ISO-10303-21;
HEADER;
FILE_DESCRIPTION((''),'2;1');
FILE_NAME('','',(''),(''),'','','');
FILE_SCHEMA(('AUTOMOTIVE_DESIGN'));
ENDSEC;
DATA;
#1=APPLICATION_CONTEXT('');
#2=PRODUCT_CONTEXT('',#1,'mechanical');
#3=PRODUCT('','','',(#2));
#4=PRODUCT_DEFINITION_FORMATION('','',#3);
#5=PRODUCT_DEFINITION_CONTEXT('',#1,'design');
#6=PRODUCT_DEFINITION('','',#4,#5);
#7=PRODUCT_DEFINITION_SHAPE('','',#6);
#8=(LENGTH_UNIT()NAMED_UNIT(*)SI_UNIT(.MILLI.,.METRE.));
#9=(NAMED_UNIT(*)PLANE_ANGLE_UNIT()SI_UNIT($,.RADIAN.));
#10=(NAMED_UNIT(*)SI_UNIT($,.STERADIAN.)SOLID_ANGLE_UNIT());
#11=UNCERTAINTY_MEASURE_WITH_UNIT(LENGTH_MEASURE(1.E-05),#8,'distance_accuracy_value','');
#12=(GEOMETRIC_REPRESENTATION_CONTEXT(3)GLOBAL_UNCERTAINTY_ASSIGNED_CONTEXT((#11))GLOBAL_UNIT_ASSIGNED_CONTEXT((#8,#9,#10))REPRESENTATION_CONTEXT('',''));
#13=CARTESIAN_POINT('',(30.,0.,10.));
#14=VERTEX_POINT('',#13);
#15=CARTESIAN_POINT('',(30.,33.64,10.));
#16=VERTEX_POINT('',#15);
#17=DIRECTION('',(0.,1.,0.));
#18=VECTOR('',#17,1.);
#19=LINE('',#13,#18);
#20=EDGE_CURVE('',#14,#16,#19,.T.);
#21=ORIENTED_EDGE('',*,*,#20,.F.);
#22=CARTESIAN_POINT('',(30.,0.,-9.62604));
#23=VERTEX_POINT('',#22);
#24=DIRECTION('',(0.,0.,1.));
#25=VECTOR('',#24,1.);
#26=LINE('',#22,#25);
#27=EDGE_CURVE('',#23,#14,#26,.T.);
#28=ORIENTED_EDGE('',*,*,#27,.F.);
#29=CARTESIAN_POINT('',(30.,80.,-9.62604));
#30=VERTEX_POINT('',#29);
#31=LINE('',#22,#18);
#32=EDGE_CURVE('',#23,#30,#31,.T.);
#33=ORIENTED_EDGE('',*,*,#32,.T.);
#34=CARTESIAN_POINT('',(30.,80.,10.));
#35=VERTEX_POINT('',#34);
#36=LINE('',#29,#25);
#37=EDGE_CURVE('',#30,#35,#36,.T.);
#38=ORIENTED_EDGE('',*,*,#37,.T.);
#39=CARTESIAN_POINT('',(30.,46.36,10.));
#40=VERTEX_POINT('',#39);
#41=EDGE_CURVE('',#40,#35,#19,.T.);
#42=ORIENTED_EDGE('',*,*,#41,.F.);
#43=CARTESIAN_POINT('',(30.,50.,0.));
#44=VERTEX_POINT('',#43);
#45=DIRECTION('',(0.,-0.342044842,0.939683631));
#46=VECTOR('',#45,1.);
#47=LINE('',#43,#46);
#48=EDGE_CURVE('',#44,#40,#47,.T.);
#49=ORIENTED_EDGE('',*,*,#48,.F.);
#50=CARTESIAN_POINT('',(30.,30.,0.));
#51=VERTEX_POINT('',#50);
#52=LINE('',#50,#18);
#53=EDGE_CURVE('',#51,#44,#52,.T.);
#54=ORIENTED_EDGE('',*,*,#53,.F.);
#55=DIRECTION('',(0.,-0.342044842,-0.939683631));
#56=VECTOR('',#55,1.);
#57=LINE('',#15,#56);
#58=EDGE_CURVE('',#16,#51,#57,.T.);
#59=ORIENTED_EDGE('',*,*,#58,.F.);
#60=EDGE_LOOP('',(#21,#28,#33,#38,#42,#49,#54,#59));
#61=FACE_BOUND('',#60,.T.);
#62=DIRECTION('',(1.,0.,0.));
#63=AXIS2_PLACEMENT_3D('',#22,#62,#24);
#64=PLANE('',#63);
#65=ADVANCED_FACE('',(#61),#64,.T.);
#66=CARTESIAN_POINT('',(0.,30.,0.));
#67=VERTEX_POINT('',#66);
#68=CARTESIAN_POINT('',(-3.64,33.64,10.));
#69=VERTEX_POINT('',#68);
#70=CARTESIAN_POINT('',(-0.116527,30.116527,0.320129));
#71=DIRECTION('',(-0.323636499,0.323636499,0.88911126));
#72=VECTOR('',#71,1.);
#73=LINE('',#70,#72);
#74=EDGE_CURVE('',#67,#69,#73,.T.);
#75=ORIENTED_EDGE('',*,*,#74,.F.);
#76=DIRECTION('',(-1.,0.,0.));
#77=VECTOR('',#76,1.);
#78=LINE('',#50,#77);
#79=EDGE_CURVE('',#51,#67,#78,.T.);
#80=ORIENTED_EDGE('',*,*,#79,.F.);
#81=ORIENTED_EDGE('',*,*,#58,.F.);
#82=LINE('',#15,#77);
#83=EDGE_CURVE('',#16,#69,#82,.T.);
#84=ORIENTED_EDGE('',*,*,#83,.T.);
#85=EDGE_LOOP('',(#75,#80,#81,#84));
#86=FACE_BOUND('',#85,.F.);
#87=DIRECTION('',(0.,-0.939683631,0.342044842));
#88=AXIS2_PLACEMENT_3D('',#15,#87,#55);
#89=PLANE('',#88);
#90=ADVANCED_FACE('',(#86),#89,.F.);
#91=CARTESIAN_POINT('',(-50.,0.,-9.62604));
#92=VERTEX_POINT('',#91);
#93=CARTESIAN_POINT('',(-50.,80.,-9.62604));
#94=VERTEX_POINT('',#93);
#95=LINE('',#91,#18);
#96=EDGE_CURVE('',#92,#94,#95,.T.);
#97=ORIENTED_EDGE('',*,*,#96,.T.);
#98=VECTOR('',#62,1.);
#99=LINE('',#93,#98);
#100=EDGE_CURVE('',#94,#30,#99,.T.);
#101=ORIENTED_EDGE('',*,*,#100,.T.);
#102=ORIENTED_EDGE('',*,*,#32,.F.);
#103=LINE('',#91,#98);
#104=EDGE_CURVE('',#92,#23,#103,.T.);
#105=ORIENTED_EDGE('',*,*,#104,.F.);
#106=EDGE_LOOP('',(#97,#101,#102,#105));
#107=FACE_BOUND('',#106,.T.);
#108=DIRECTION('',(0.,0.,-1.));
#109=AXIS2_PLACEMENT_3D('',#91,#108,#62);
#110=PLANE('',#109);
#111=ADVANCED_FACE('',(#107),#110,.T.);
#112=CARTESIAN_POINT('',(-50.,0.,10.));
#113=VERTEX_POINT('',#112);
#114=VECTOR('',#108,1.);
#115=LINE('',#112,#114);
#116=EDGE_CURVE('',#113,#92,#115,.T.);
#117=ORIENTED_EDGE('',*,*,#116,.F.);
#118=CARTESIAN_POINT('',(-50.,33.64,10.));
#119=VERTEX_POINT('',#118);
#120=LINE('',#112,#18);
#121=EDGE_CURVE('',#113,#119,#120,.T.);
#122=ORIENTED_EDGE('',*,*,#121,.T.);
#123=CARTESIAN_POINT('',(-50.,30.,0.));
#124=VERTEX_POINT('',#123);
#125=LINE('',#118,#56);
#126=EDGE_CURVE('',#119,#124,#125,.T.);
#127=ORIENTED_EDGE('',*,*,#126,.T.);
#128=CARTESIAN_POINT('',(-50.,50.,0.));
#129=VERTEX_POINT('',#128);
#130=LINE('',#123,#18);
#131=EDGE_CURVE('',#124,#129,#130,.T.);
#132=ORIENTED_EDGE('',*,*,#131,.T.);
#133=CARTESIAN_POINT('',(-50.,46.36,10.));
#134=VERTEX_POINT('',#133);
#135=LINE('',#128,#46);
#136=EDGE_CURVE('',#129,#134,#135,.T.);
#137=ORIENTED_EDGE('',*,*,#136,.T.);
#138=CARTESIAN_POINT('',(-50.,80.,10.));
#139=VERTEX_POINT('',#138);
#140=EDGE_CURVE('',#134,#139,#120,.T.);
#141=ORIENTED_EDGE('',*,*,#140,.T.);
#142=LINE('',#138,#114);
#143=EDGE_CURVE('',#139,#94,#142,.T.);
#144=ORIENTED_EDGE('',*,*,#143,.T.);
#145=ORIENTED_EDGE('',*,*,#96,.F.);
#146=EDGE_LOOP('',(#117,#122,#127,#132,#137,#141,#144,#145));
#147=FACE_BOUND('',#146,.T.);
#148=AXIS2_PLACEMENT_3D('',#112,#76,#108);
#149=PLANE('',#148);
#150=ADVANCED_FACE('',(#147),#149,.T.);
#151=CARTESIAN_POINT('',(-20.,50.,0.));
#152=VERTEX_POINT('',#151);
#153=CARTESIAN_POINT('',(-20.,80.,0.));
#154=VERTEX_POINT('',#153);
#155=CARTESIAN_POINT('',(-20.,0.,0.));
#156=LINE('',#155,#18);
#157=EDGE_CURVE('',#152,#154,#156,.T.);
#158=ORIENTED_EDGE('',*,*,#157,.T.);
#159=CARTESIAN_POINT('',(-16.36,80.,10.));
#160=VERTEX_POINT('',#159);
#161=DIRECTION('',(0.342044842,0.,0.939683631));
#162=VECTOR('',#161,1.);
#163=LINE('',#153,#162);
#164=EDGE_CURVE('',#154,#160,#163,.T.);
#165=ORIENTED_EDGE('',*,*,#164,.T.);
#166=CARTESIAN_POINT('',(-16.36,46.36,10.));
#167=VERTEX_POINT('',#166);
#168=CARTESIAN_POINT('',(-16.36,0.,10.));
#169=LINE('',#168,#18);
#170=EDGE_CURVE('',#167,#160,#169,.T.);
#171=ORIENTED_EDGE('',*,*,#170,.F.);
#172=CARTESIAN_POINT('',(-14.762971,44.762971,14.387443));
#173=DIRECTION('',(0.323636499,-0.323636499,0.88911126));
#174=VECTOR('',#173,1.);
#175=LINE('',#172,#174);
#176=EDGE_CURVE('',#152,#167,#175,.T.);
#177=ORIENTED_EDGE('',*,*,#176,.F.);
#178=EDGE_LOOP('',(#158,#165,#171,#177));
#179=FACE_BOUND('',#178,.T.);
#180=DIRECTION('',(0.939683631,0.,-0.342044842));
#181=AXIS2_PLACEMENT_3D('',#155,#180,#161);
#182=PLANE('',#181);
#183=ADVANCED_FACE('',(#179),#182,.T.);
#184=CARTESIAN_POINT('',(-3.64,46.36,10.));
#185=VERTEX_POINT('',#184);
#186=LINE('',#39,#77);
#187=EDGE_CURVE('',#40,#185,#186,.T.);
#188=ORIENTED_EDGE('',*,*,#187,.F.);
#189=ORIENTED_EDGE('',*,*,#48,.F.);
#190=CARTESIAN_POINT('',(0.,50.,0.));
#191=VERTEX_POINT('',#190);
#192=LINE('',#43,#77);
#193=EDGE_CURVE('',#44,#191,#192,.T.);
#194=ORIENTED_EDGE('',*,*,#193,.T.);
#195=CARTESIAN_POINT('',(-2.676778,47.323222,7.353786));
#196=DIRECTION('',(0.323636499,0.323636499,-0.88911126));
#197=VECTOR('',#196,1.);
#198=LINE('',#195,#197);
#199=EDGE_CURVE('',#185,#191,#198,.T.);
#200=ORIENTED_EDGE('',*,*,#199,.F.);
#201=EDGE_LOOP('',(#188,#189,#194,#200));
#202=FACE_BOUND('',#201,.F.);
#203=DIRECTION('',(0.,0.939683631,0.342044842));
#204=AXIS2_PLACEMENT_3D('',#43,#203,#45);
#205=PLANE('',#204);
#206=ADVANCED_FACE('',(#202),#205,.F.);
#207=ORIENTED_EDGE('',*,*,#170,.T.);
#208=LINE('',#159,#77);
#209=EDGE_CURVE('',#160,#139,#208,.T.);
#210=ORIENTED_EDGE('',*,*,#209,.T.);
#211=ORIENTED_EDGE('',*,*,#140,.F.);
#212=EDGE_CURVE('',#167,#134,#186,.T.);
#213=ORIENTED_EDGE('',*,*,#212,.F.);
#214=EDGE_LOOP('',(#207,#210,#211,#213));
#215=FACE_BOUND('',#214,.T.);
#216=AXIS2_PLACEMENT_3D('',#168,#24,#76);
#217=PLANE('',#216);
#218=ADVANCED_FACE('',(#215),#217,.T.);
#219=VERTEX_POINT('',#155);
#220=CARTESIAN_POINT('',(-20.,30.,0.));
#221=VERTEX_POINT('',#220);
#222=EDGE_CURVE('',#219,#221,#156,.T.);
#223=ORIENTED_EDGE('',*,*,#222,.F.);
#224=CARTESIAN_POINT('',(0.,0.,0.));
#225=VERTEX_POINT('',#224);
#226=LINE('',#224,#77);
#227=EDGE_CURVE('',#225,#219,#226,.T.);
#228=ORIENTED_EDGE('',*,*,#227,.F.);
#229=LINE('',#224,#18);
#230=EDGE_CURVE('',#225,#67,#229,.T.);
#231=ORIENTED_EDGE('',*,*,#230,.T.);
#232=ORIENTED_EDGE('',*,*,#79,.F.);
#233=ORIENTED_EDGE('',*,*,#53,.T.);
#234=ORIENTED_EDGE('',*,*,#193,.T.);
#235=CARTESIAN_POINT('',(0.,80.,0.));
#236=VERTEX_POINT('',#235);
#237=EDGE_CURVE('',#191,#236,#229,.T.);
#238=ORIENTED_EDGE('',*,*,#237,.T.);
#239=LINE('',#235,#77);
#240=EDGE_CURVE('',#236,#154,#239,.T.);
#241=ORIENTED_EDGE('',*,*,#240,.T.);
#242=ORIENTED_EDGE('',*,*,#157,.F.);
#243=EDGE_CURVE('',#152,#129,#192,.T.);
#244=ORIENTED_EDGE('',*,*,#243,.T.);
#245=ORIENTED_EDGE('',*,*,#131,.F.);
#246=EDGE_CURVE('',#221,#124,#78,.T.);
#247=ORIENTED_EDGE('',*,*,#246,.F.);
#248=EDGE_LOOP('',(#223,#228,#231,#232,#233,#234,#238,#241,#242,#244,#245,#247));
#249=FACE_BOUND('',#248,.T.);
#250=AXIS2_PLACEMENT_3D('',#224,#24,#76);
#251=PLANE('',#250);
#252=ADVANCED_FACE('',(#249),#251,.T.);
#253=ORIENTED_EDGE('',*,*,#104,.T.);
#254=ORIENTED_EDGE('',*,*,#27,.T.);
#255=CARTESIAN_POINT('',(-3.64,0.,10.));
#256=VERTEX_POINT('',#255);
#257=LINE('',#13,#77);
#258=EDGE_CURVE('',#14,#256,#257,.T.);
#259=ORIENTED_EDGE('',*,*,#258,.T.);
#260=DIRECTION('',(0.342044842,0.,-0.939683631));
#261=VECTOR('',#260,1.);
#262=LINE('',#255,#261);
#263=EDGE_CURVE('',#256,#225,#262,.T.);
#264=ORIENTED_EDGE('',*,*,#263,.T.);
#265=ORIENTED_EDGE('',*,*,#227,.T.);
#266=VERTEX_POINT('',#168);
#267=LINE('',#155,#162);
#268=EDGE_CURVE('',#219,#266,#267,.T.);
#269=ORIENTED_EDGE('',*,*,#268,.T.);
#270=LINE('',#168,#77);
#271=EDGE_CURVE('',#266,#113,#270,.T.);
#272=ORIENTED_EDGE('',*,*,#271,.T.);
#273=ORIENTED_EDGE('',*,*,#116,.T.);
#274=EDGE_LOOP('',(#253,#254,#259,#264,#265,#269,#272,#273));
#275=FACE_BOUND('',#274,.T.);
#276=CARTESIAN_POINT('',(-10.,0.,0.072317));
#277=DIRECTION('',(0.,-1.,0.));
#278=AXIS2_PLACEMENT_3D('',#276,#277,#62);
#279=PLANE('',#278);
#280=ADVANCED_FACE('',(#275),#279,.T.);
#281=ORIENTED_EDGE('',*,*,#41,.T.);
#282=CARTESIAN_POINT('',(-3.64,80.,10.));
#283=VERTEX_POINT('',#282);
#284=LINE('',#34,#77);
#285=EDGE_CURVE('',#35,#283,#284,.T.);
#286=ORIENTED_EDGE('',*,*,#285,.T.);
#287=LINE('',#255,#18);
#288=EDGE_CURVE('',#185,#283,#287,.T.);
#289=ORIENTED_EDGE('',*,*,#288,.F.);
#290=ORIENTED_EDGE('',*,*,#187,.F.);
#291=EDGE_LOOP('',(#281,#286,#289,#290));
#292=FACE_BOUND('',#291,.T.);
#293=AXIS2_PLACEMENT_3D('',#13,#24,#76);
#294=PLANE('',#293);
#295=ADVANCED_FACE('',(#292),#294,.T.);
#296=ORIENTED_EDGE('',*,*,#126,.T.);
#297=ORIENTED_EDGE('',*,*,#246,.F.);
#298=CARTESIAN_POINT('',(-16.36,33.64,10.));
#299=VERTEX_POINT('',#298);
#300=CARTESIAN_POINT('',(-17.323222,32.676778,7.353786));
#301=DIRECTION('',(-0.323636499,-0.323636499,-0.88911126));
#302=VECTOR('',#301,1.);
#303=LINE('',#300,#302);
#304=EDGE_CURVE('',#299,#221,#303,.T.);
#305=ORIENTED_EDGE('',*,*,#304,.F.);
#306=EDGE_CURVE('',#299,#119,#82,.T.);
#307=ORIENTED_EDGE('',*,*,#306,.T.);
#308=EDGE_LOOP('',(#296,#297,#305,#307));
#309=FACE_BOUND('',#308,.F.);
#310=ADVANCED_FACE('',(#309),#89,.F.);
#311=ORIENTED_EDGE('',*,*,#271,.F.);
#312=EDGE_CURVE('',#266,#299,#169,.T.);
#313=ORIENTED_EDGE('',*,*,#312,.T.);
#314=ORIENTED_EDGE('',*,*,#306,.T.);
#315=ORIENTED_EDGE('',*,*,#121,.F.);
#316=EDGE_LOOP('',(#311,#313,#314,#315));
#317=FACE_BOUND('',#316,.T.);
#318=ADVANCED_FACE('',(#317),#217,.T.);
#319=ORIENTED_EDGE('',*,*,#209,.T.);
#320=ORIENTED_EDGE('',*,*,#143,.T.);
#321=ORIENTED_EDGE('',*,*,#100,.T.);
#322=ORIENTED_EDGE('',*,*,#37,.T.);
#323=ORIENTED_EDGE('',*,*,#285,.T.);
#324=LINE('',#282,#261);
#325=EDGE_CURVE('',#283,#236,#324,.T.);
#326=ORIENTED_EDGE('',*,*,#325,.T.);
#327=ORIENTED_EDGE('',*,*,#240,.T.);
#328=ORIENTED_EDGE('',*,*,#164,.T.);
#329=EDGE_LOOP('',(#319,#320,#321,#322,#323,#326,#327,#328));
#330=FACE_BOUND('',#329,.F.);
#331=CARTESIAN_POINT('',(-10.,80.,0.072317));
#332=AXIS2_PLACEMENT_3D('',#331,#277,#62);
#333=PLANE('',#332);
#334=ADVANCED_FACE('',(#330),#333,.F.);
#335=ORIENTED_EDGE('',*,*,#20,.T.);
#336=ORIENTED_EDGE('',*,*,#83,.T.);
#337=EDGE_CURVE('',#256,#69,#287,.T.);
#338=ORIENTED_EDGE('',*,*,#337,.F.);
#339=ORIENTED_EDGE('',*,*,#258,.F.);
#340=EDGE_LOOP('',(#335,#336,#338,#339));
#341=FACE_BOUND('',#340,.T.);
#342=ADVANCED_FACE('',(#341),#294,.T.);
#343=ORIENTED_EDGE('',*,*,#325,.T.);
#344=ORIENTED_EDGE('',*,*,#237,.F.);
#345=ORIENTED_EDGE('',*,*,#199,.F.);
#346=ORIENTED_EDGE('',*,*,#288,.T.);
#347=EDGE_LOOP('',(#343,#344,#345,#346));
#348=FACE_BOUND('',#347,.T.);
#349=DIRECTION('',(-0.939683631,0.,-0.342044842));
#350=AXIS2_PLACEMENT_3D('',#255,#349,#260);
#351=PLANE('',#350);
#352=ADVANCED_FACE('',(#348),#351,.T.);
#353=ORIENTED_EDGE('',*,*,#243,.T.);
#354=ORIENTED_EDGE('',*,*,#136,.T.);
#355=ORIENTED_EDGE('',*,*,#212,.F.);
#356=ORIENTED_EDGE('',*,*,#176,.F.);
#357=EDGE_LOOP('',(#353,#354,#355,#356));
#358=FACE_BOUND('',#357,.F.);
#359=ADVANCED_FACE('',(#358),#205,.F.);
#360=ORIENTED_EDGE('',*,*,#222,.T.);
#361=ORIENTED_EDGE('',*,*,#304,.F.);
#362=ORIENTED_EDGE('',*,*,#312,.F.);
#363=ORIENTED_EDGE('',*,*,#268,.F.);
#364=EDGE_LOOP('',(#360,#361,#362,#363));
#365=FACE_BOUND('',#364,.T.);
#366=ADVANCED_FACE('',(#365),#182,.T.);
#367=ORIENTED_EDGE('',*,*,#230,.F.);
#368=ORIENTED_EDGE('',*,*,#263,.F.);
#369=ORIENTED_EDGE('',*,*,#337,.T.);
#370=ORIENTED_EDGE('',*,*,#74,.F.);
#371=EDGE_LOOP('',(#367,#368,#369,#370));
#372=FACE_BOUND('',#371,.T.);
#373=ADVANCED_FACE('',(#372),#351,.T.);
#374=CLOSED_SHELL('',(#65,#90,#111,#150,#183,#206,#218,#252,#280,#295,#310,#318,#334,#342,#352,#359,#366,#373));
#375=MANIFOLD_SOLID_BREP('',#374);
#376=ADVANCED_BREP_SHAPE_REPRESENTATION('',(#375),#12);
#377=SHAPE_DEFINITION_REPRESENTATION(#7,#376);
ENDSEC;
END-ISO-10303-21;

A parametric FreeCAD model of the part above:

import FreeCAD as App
import Part
import Sketcher

V = App.Vector
Q = App.Units.Quantity

doc = App.newDocument("Part")
body = doc.addObject("PartDesign::Body", "Body")

sketch1 = body.newObject("Sketcher::SketchObject", "Sketch")
sketch1.AttachmentSupport = (doc.getObject("XZ_Plane"), [""])
sketch1.MapMode = "FlatFace"
sketch1.addGeometry(Part.LineSegment(V(-3.64, 10, 0), V(0, 0, 0)), False)
sketch1.addGeometry(Part.LineSegment(V(0, 0, 0), V(-20, 0, 0)), False)
sketch1.addGeometry(Part.LineSegment(V(-20, 0, 0), V(-16.36, 10, 0)), False)
sketch1.addGeometry(Part.LineSegment(V(-16.36, 10, 0), V(-50, 10, 0)), False)
sketch1.addGeometry(Part.LineSegment(V(-50, 10, 0), V(-50, -9.62604, 0)), False)
sketch1.addGeometry(Part.LineSegment(V(-50, -9.62604, 0), V(30, -9.62604, 0)), False)
sketch1.addGeometry(Part.LineSegment(V(30, -9.62604, 0), V(30, 10, 0)), False)
sketch1.addGeometry(Part.LineSegment(V(30, 10, 0), V(-3.64, 10, 0)), False)
sketch1.addConstraint(Sketcher.Constraint("Coincident", 0, 2, 1, 1))
sketch1.addConstraint(Sketcher.Constraint("Coincident", 1, 2, 2, 1))
sketch1.addConstraint(Sketcher.Constraint("Coincident", 2, 2, 3, 1))
sketch1.addConstraint(Sketcher.Constraint("Coincident", 3, 2, 4, 1))
sketch1.addConstraint(Sketcher.Constraint("Coincident", 4, 2, 5, 1))
sketch1.addConstraint(Sketcher.Constraint("Coincident", 5, 2, 6, 1))
sketch1.addConstraint(Sketcher.Constraint("Coincident", 6, 2, 7, 1))
sketch1.addConstraint(Sketcher.Constraint("Coincident", 7, 2, 0, 1))
sketch1.addConstraint(Sketcher.Constraint("Horizontal", 1))
sketch1.addConstraint(Sketcher.Constraint("Horizontal", 3))
sketch1.addConstraint(Sketcher.Constraint("Vertical", 4))
sketch1.addConstraint(Sketcher.Constraint("Horizontal", 5))
sketch1.addConstraint(Sketcher.Constraint("Vertical", 6))
sketch1.addConstraint(Sketcher.Constraint("Horizontal", 7))
sketch1.addConstraint(Sketcher.Constraint("Coincident", 0, 2, -1, 1))
sketch1.addConstraint(Sketcher.Constraint("Horizontal", 3, 2, 6, 2))
sketch1.addConstraint(Sketcher.Constraint("Equal", 3, 7))
sketch1.addConstraint(Sketcher.Constraint("Equal", 0, 2))
sketch1.addConstraint(Sketcher.Constraint("DistanceX", 1, 2, 1, 1, Q("20 mm")))
sketch1.addConstraint(Sketcher.Constraint("DistanceX", 5, 1, 5, 2, Q("80 mm")))
sketch1.addConstraint(Sketcher.Constraint("DistanceY", -1, 1, 2, 2, Q("10 mm")))
sketch1.addConstraint(Sketcher.Constraint("DistanceX", 3, 2, 3, 1, Q("33.64 mm")))
sketch1.addConstraint(Sketcher.Constraint("DistanceY", 4, 2, 4, 1, Q("19.62604 mm")))
pad1 = body.newObject("PartDesign::Pad", "Pad")
pad1.Profile = sketch1
pad1.Length = 80
pad1.Reversed = True

sketch2 = body.newObject("Sketcher::SketchObject", "Sketch001")
sketch2.AttachmentSupport = (doc.getObject("YZ_Plane"), [""])
sketch2.MapMode = "FlatFace"
sketch2.AttachmentOffset = App.Placement(V(0, 0, 30), App.Rotation())
sketch2.addGeometry(Part.LineSegment(V(33.64, 10, 0), V(30, 0, 0)), False)
sketch2.addGeometry(Part.LineSegment(V(30, 0, 0), V(50, 0, 0)), False)
sketch2.addGeometry(Part.LineSegment(V(50, 0, 0), V(46.36, 10, 0)), False)
sketch2.addGeometry(Part.LineSegment(V(46.36, 10, 0), V(33.64, 10, 0)), False)
sketch2.addConstraint(Sketcher.Constraint("Coincident", 0, 2, 1, 1))
sketch2.addConstraint(Sketcher.Constraint("Coincident", 1, 2, 2, 1))
sketch2.addConstraint(Sketcher.Constraint("Coincident", 2, 2, 3, 1))
sketch2.addConstraint(Sketcher.Constraint("Coincident", 3, 2, 0, 1))
sketch2.addConstraint(Sketcher.Constraint("Horizontal", 1))
sketch2.addConstraint(Sketcher.Constraint("Horizontal", 3))
sketch2.addConstraint(Sketcher.Constraint("PointOnObject", 0, 2, -1))
sketch2.addConstraint(Sketcher.Constraint("Equal", 0, 2))
sketch2.addConstraint(Sketcher.Constraint("DistanceX", 1, 1, 1, 2, Q("20 mm")))
sketch2.addConstraint(Sketcher.Constraint("DistanceX", -1, 1, 0, 2, Q("30 mm")))
sketch2.addConstraint(Sketcher.Constraint("DistanceY", -1, 1, 2, 2, Q("10 mm")))
sketch2.addConstraint(Sketcher.Constraint("DistanceX", 3, 2, 3, 1, Q("12.72 mm")))
pocket1 = body.newObject("PartDesign::Pocket", "Pocket")
pocket1.Profile = sketch2
pocket1.Length = 80

doc.recompute()
